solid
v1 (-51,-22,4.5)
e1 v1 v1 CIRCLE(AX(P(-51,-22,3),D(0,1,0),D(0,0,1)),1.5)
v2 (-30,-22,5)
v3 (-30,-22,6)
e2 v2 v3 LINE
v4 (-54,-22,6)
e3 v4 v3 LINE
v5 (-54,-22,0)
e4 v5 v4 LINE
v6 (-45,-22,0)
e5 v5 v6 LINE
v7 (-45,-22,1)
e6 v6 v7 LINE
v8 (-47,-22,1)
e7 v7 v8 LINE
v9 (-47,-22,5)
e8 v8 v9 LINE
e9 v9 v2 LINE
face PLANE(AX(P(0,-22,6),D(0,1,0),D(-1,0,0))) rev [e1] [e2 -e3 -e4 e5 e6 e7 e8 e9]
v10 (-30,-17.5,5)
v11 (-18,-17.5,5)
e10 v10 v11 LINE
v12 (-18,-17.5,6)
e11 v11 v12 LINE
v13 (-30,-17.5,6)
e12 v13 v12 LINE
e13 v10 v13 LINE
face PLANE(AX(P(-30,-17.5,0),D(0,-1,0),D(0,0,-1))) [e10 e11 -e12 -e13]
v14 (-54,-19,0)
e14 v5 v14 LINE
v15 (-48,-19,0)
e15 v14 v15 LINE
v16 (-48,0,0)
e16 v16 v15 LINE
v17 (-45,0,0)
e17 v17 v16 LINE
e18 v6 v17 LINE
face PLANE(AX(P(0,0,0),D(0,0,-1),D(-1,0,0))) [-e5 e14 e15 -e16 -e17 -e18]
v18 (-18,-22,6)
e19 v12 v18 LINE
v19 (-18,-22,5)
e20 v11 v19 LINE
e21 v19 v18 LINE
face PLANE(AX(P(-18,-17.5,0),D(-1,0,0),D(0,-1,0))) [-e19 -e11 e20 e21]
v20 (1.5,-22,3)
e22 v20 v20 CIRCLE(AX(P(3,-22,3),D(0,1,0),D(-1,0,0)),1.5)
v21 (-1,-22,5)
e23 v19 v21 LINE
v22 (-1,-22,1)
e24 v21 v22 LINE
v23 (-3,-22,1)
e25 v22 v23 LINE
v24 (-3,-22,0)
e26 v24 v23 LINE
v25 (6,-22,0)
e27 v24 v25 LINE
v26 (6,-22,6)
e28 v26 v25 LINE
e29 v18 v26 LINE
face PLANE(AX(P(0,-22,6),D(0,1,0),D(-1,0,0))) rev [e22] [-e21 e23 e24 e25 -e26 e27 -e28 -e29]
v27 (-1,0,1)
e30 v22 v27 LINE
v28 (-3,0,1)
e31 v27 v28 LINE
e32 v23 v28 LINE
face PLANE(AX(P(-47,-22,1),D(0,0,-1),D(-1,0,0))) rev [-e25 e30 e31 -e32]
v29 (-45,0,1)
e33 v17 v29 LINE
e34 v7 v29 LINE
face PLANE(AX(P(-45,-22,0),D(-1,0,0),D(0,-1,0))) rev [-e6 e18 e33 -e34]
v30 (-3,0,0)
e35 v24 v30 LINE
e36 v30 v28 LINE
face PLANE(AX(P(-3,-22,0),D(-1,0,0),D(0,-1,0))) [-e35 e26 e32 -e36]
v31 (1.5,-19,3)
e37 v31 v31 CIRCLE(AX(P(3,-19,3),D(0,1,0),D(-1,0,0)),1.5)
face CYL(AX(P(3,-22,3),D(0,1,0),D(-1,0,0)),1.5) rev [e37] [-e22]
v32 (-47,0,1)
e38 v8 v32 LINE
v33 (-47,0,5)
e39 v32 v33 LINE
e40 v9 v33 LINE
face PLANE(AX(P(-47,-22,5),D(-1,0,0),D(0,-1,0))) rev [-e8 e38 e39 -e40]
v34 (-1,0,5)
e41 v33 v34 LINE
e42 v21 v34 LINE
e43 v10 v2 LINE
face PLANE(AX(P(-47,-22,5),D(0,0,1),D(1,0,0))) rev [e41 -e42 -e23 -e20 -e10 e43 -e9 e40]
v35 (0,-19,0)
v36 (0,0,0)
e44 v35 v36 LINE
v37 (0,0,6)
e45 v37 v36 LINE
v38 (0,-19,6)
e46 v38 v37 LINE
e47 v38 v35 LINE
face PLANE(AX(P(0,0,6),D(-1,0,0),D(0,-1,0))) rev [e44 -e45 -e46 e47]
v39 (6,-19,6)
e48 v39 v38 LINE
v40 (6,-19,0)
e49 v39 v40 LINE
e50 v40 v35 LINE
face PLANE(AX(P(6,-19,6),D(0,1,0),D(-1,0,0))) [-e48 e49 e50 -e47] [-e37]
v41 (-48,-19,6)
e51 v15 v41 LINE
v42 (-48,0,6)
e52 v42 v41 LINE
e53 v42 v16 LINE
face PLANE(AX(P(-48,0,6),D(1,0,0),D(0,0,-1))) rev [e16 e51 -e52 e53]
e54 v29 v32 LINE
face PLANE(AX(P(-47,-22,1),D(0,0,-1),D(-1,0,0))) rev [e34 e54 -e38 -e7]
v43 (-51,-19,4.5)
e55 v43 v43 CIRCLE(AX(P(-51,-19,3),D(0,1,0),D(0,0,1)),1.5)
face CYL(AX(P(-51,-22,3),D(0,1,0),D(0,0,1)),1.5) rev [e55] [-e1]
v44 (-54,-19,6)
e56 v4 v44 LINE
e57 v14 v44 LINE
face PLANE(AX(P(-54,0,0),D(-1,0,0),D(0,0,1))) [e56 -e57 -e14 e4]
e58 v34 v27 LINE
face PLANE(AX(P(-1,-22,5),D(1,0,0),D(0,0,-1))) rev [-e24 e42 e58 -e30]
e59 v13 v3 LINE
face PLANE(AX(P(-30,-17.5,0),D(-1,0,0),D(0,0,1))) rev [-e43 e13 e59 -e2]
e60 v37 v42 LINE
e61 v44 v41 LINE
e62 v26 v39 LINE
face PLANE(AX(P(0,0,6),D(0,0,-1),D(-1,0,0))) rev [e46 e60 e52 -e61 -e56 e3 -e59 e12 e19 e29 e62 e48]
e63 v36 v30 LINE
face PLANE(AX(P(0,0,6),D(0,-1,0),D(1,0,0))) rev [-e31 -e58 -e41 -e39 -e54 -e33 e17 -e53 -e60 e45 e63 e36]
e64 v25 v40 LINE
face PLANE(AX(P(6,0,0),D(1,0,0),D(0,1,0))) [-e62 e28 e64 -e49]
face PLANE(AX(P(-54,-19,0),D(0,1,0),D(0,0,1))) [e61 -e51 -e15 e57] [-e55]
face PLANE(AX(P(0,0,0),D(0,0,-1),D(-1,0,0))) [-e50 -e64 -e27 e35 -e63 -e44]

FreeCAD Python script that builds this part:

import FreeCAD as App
import Part
import Sketcher

V = App.Vector


def add_polygon(sketch, points):
    """Adds a closed chain of lines whose ends are joined by coincident constraints."""
    first, n = sketch.GeometryCount, len(points)
    for a, b in zip(points, points[1:] + points[:1]):
        sketch.addGeometry(Part.LineSegment(App.Vector(*a, 0), App.Vector(*b, 0)), False)
    for i in range(n):
        sketch.addConstraint(Sketcher.Constraint("Coincident", first + i, 2, first + (i + 1) % n, 1))

doc = App.newDocument("Part")
params = doc.addObject("Spreadsheet::Sheet", "Params")
for row, (alias, value) in enumerate([
    ("sketch1_width", "48 mm"),
    ("sketch1_height", "22 mm"),
    ("pad1_length", "6 mm"),
    ("sketch2_width", "46 mm"),
    ("sketch2_height", "4 mm"),
    ("pocket1_length", "22 mm"),
    ("sketch3_width", "42 mm"),
    ("sketch3_height", "1 mm"),
    ("pocket2_length", "22 mm"),
    ("sketch4_width", "12 mm"),
    ("sketch4_height", "4.5 mm"),
    ("pocket3_length", "6 mm"),
    ("sketch5_width", "3 mm"),
    ("sketch5_height", "6 mm"),
    ("pad2_length", "6 mm"),
    ("sketch6_width", "3 mm"),
    ("sketch6_height", "6 mm"),
    ("pad3_length", "6 mm"),
    ("sketch7_diameter", "3 mm"),
    ("pocket4_length", "3 mm"),
    ("sketch8_diameter", "3 mm"),
    ("pocket5_length", "3 mm"),
], start=1):
    params.set(f"A{row}", alias)
    params.set(f"B{row}", "=" + value)
    params.setAlias(f"B{row}", alias)

body = doc.addObject("PartDesign::Body", "Body")

# Sketch on XY plane
sketch1 = doc.addObject("Sketcher::SketchObject", "Sketch")
body.addObject(sketch1)
sketch1.AttachmentSupport = (doc.XY_Plane, [""])
sketch1.MapMode = "FlatFace"
add_polygon(sketch1, [(-48, 0), (-48, -22), (0, -22), (0, 0)])  # lines 0-3
sketch1.addConstraint(Sketcher.Constraint("Vertical", 0))
sketch1.addConstraint(Sketcher.Constraint("Horizontal", 1))
sketch1.addConstraint(Sketcher.Constraint("Vertical", 2))
sketch1.addConstraint(Sketcher.Constraint("Horizontal", 3))
sketch1.addConstraint(Sketcher.Constraint("Coincident", 2, 2, -1, 1))
sketch1.addConstraint(Sketcher.Constraint("DistanceX", 1, 1, 1, 2, 48.0))
sketch1.addConstraint(Sketcher.Constraint("DistanceY", 0, 2, 0, 1, 22.0))
sketch1.setExpression("Constraints[9]", "Params.sketch1_width")
sketch1.setExpression("Constraints[10]", "Params.sketch1_height")
pad1 = doc.addObject("PartDesign::Pad", "Pad")
body.addObject(pad1)
pad1.Profile = sketch1
pad1.setExpression("Length", "Params.pad1_length")

# Sketch on XZ plane
sketch2 = doc.addObject("Sketcher::SketchObject", "Sketch001")
body.addObject(sketch2)
sketch2.AttachmentSupport = (doc.XZ_Plane, [""])
sketch2.MapMode = "FlatFace"
add_polygon(sketch2, [(-47, 1), (-47, 5), (-1, 5), (-1, 1)])  # lines 0-3
sketch2.addConstraint(Sketcher.Constraint("Vertical", 0))
sketch2.addConstraint(Sketcher.Constraint("Horizontal", 1))
sketch2.addConstraint(Sketcher.Constraint("Vertical", 2))
sketch2.addConstraint(Sketcher.Constraint("Horizontal", 3))
sketch2.addConstraint(Sketcher.Constraint("DistanceX", 1, 1, 1, 2, 46.0))
sketch2.addConstraint(Sketcher.Constraint("DistanceY", 0, 1, 0, 2, 4.0))
sketch2.addConstraint(Sketcher.Constraint("DistanceX", 0, 2, -1, 1, 47.0))
sketch2.addConstraint(Sketcher.Constraint("DistanceY", -1, 1, 0, 2, 5.0))
sketch2.setExpression("Constraints[8]", "Params.sketch2_width")
sketch2.setExpression("Constraints[9]", "Params.sketch2_height")
pocket1 = doc.addObject("PartDesign::Pocket", "Pocket")
body.addObject(pocket1)
pocket1.Profile = sketch2
pocket1.setExpression("Length", "Params.pocket1_length")
pocket1.Reversed = True

# Sketch on XZ plane
sketch3 = doc.addObject("Sketcher::SketchObject", "Sketch002")
body.addObject(sketch3)
sketch3.AttachmentSupport = (doc.XZ_Plane, [""])
sketch3.MapMode = "FlatFace"
add_polygon(sketch3, [(-45, 0), (-45, 1), (-3, 1), (-3, 0)])  # lines 0-3
sketch3.addConstraint(Sketcher.Constraint("Vertical", 0))
sketch3.addConstraint(Sketcher.Constraint("Horizontal", 1))
sketch3.addConstraint(Sketcher.Constraint("Vertical", 2))
sketch3.addConstraint(Sketcher.Constraint("Horizontal", 3))
sketch3.addConstraint(Sketcher.Constraint("PointOnObject", 2, 2, -1))
sketch3.addConstraint(Sketcher.Constraint("DistanceX", 1, 1, 1, 2, 42.0))
sketch3.addConstraint(Sketcher.Constraint("DistanceY", 0, 1, 0, 2, 1.0))
sketch3.addConstraint(Sketcher.Constraint("DistanceX", 0, 2, -1, 1, 45.0))
sketch3.setExpression("Constraints[9]", "Params.sketch3_width")
sketch3.setExpression("Constraints[10]", "Params.sketch3_height")
pocket2 = doc.addObject("PartDesign::Pocket", "Pocket001")
body.addObject(pocket2)
pocket2.Profile = sketch3
pocket2.setExpression("Length", "Params.pocket2_length")
pocket2.Reversed = True

# Sketch on XY plane
sketch4 = doc.addObject("Sketcher::SketchObject", "Sketch003")
body.addObject(sketch4)
sketch4.AttachmentSupport = (doc.XY_Plane, [""])
sketch4.MapMode = "FlatFace"
sketch4.AttachmentOffset = App.Placement(V(0, 0, 6), App.Rotation())
add_polygon(sketch4, [(-30, -17.5), (-30, -22), (-18, -22), (-18, -17.5)])  # lines 0-3
sketch4.addConstraint(Sketcher.Constraint("Vertical", 0))
sketch4.addConstraint(Sketcher.Constraint("Horizontal", 1))
sketch4.addConstraint(Sketcher.Constraint("Vertical", 2))
sketch4.addConstraint(Sketcher.Constraint("Horizontal", 3))
sketch4.addConstraint(Sketcher.Constraint("DistanceX", 1, 1, 1, 2, 12.0))
sketch4.addConstraint(Sketcher.Constraint("DistanceY", 0, 2, 0, 1, 4.5))
sketch4.addConstraint(Sketcher.Constraint("DistanceX", 0, 2, -1, 1, 30.0))
sketch4.addConstraint(Sketcher.Constraint("DistanceY", 0, 2, -1, 1, 22.0))
sketch4.setExpression("Constraints[8]", "Params.sketch4_width")
sketch4.setExpression("Constraints[9]", "Params.sketch4_height")
pocket3 = doc.addObject("PartDesign::Pocket", "Pocket002")
body.addObject(pocket3)
pocket3.Profile = sketch4
pocket3.setExpression("Length", "Params.pocket3_length")

# Sketch on YZ plane
sketch5 = doc.addObject("Sketcher::SketchObject", "Sketch004")
body.addObject(sketch5)
sketch5.AttachmentSupport = (doc.YZ_Plane, [""])
sketch5.MapMode = "FlatFace"
add_polygon(sketch5, [(-19, 6), (-22, 6), (-22, 0), (-19, 0)])  # lines 0-3
sketch5.addConstraint(Sketcher.Constraint("Horizontal", 0))
sketch5.addConstraint(Sketcher.Constraint("Vertical", 1))
sketch5.addConstraint(Sketcher.Constraint("Horizontal", 2))
sketch5.addConstraint(Sketcher.Constraint("Vertical", 3))
sketch5.addConstraint(Sketcher.Constraint("PointOnObject", 1, 2, -1))
sketch5.addConstraint(Sketcher.Constraint("DistanceX", 0, 2, 0, 1, 3.0))
sketch5.addConstraint(Sketcher.Constraint("DistanceY", 1, 2, 1, 1, 6.0))
sketch5.addConstraint(Sketcher.Constraint("DistanceX", 0, 2, -1, 1, 22.0))
sketch5.setExpression("Constraints[9]", "Params.sketch5_width")
sketch5.setExpression("Constraints[10]", "Params.sketch5_height")
pad2 = doc.addObject("PartDesign::Pad", "Pad001")
body.addObject(pad2)
pad2.Profile = sketch5
pad2.setExpression("Length", "Params.pad2_length")

# Sketch on YZ plane
sketch6 = doc.addObject("Sketcher::SketchObject", "Sketch005")
body.addObject(sketch6)
sketch6.AttachmentSupport = (doc.YZ_Plane, [""])
sketch6.MapMode = "FlatFace"
sketch6.AttachmentOffset = App.Placement(V(0, 0, -48), App.Rotation())
add_polygon(sketch6, [(-19, 0), (-22, 0), (-22, 6), (-19, 6)])  # lines 0-3
sketch6.addConstraint(Sketcher.Constraint("Horizontal", 0))
sketch6.addConstraint(Sketcher.Constraint("Vertical", 1))
sketch6.addConstraint(Sketcher.Constraint("Horizontal", 2))
sketch6.addConstraint(Sketcher.Constraint("Vertical", 3))
sketch6.addConstraint(Sketcher.Constraint("PointOnObject", 0, 2, -1))
sketch6.addConstraint(Sketcher.Constraint("DistanceX", 0, 2, 0, 1, 3.0))
sketch6.addConstraint(Sketcher.Constraint("DistanceY", 1, 1, 1, 2, 6.0))
sketch6.addConstraint(Sketcher.Constraint("DistanceX", 0, 2, -1, 1, 22.0))
sketch6.setExpression("Constraints[9]", "Params.sketch6_width")
sketch6.setExpression("Constraints[10]", "Params.sketch6_height")
pad3 = doc.addObject("PartDesign::Pad", "Pad002")
body.addObject(pad3)
pad3.Profile = sketch6
pad3.setExpression("Length", "Params.pad3_length")
pad3.Reversed = True

# Sketch on XZ plane
sketch7 = doc.addObject("Sketcher::SketchObject", "Sketch006")
body.addObject(sketch7)
sketch7.AttachmentSupport = (doc.XZ_Plane, [""])
sketch7.MapMode = "FlatFace"
sketch7.AttachmentOffset = App.Placement(V(0, 0, 19), App.Rotation())
sketch7.addGeometry(Part.Circle(V(3, 3, 0), V(0, 0, 1), 1.5), False)
sketch7.addConstraint(Sketcher.Constraint("Diameter", 0, 3.0))
sketch7.addConstraint(Sketcher.Constraint("DistanceX", -1, 1, 0, 3, 3.0))
sketch7.addConstraint(Sketcher.Constraint("DistanceY", -1, 1, 0, 3, 3.0))
sketch7.setExpression("Constraints[0]", "Params.sketch7_diameter")
pocket4 = doc.addObject("PartDesign::Pocket", "Pocket003")
body.addObject(pocket4)
pocket4.Profile = sketch7
pocket4.setExpression("Length", "Params.pocket4_length")
pocket4.Reversed = True

# Sketch on XZ plane
sketch8 = doc.addObject("Sketcher::SketchObject", "Sketch007")
body.addObject(sketch8)
sketch8.AttachmentSupport = (doc.XZ_Plane, [""])
sketch8.MapMode = "FlatFace"
sketch8.AttachmentOffset = App.Placement(V(0, 0, 19), App.Rotation())
sketch8.addGeometry(Part.Circle(V(-51, 3, 0), V(0, 0, 1), 1.5), False)
sketch8.addConstraint(Sketcher.Constraint("Diameter", 0, 3.0))
sketch8.addConstraint(Sketcher.Constraint("DistanceX", 0, 3, -1, 1, 51.0))
sketch8.addConstraint(Sketcher.Constraint("DistanceY", -1, 1, 0, 3, 3.0))
sketch8.setExpression("Constraints[0]", "Params.sketch8_diameter")
pocket5 = doc.addObject("PartDesign::Pocket", "Pocket004")
body.addObject(pocket5)
pocket5.Profile = sketch8
pocket5.setExpression("Length", "Params.pocket5_length")
pocket5.Reversed = True

doc.recompute()
